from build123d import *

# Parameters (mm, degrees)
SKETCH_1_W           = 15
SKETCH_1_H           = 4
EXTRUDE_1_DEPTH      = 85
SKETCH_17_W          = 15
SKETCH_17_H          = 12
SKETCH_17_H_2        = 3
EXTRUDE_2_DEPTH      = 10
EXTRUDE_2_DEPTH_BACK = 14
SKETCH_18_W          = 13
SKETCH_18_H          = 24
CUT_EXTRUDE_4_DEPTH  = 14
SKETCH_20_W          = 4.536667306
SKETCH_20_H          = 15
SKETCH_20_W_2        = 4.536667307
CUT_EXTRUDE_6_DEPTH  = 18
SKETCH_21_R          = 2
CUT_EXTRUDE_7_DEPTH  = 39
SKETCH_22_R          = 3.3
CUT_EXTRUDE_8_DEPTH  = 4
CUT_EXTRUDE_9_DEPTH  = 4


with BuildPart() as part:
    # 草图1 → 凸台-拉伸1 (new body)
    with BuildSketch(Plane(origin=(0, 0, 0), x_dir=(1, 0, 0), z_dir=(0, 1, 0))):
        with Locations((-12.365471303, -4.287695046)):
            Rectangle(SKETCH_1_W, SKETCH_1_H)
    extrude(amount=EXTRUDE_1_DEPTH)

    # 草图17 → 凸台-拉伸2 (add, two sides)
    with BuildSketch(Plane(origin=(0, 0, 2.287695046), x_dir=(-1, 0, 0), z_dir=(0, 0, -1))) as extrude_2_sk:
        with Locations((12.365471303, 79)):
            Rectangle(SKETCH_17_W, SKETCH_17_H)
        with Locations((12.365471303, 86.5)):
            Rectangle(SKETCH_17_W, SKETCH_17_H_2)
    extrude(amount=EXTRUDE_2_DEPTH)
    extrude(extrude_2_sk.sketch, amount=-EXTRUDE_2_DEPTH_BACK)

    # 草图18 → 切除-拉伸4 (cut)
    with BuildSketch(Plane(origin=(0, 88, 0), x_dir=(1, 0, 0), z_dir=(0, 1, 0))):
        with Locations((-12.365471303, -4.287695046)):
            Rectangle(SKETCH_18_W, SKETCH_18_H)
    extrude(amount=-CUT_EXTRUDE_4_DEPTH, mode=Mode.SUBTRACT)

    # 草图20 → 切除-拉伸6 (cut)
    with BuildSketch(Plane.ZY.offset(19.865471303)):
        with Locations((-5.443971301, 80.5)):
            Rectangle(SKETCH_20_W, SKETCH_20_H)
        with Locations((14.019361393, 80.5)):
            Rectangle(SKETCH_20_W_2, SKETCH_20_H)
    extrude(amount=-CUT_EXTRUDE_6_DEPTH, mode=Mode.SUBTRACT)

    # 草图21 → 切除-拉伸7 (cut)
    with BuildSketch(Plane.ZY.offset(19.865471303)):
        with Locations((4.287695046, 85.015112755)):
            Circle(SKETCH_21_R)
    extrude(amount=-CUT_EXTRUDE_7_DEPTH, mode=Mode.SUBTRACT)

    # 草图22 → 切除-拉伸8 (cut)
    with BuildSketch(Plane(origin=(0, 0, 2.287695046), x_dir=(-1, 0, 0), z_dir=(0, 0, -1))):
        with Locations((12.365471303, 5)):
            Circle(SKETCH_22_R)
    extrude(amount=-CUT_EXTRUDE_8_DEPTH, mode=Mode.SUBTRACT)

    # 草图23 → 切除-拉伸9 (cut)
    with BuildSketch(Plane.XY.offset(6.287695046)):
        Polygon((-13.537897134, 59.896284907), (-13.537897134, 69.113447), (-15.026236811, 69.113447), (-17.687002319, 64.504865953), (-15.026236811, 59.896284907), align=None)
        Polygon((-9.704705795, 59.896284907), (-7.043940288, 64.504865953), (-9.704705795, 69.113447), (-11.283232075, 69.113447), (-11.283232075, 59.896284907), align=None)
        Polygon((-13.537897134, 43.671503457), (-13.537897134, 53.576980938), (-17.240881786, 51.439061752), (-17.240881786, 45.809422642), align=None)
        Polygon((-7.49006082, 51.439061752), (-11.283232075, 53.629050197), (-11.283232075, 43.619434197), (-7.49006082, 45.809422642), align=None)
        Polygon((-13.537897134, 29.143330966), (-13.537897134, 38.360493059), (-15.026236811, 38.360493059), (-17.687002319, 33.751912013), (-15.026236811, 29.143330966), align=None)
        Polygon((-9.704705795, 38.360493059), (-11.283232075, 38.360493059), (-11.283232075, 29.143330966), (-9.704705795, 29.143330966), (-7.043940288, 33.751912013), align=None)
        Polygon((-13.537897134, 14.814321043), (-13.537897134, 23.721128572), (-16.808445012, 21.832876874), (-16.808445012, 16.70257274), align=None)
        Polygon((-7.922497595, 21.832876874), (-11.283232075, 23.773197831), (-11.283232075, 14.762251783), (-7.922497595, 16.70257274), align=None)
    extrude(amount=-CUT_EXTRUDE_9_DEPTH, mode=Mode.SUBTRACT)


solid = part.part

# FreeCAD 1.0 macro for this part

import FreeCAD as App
import Part
import Sketcher
Q = App.Units.Quantity


def add_polygon(sketch, points):
    """Adds a closed chain of lines whose ends are joined by coincident constraints."""
    first, n = sketch.GeometryCount, len(points)
    for a, b in zip(points, points[1:] + points[:1]):
        sketch.addGeometry(Part.LineSegment(App.Vector(*a, 0), App.Vector(*b, 0)), False)
    for i in range(n):
        sketch.addConstraint(Sketcher.Constraint("Coincident", first + i, 2, first + (i + 1) % n, 1))

doc = App.newDocument("Part")
body = doc.addObject("PartDesign::Body", "Body")

sketch1 = doc.addObject("Sketcher::SketchObject", "Sketch")
body.addObject(sketch1)
sketch1.AttachmentSupport = (doc.XZ_Plane, [""])
sketch1.MapMode = "FlatFace"
add_polygon(sketch1, [(-19.9, 2.3), (-19.9, 6.3), (-4.9, 6.3), (-4.9, 2.3)])
sketch1.addConstraint(Sketcher.Constraint("Vertical", 0))
sketch1.addConstraint(Sketcher.Constraint("Horizontal", 1))
sketch1.addConstraint(Sketcher.Constraint("Vertical", 2))
sketch1.addConstraint(Sketcher.Constraint("Horizontal", 3))
sketch1.addConstraint(Sketcher.Constraint("DistanceX", 1, 1, 1, 2, 15.0))
sketch1.addConstraint(Sketcher.Constraint("DistanceY", 0, 1, 0, 2, 4.0))
sketch1.addConstraint(Sketcher.Constraint("DistanceX", 0, 2, -1, 1, 19.865471))
sketch1.addConstraint(Sketcher.Constraint("DistanceY", -1, 1, 0, 2, 6.287695))
pad1 = doc.addObject("PartDesign::Pad", "Pad")
body.addObject(pad1)
pad1.Profile = sketch1
pad1.Length = 85
pad1.Reversed = True

sketch2 = doc.addObject("Sketcher::SketchObject", "Sketch001")
body.addObject(sketch2)
sketch2.AttachmentSupport = (doc.XY_Plane, [""])
sketch2.MapMode = "FlatFace"
sketch2.AttachmentOffset = App.Placement(App.Vector(0, 0, 2.287695), App.Rotation())
add_polygon(sketch2, [(-5, 73), (-20, 73), (-20, 88), (-5, 88)])
sketch2.addConstraint(Sketcher.Constraint("Horizontal", 0))
sketch2.addConstraint(Sketcher.Constraint("Vertical", 1))
sketch2.addConstraint(Sketcher.Constraint("Horizontal", 2))
sketch2.addConstraint(Sketcher.Constraint("Vertical", 3))
sketch2.addConstraint(Sketcher.Constraint("Equal", 2, 1))
sketch2.addConstraint(Sketcher.Constraint("DistanceX", 0, 2, 0, 1, 15.0))
sketch2.addConstraint(Sketcher.Constraint("DistanceY", -1, 1, 0, 2, 73.0))
sketch2.addConstraint(Sketcher.Constraint("DistanceX", 0, 2, -1, 1, 19.865471))
pad2 = doc.addObject("PartDesign::Pad", "Pad001")
body.addObject(pad2)
pad2.Profile = sketch2
pad2.Type = "TwoLengths"
pad2.Length = 10
pad2.Length2 = 14
pad2.Reversed = True

sketch3 = doc.addObject("Sketcher::SketchObject", "Sketch002")
body.addObject(sketch3)
sketch3.AttachmentSupport = (doc.XZ_Plane, [""])
sketch3.MapMode = "FlatFace"
sketch3.AttachmentOffset = App.Placement(App.Vector(0, 0, -88), App.Rotation())
add_polygon(sketch3, [(-19, -8), (-19, 16), (-6, 16), (-6, -8)])
sketch3.addConstraint(Sketcher.Constraint("Vertical", 0))
sketch3.addConstraint(Sketcher.Constraint("Horizontal", 1))
sketch3.addConstraint(Sketcher.Constraint("Vertical", 2))
sketch3.addConstraint(Sketcher.Constraint("Horizontal", 3))
sketch3.addConstraint(Sketcher.Constraint("DistanceX", 1, 1, 1, 2, 13.0))
sketch3.addConstraint(Sketcher.Constraint("DistanceY", 0, 1, 0, 2, 24.0))
sketch3.addConstraint(Sketcher.Constraint("DistanceX", 0, 2, -1, 1, 18.865471))
sketch3.addConstraint(Sketcher.Constraint("DistanceY", -1, 1, 0, 2, 16.287695))
pocket1 = doc.addObject("PartDesign::Pocket", "Pocket")
body.addObject(pocket1)
pocket1.Profile = sketch3
pocket1.Length = 14
pocket1.Reversed = True

sketch4 = doc.addObject("Sketcher::SketchObject", "Sketch003")
body.addObject(sketch4)
sketch4.AttachmentSupport = (doc.YZ_Plane, [""])
sketch4.MapMode = "FlatFace"
sketch4.AttachmentOffset = App.Placement(App.Vector(0, 0, -19.865471), App.Rotation())
add_polygon(sketch4, [(88, -7.7), (73, -7.7), (73, -3.2), (88, -3.2)])
add_polygon(sketch4, [(88, 11.8), (73, 11.8), (73, 16.3), (88, 16.3)])
sketch4.addConstraint(Sketcher.Constraint("Horizontal", 0))
sketch4.addConstraint(Sketcher.Constraint("Vertical", 1))
sketch4.addConstraint(Sketcher.Constraint("Horizontal", 2))
sketch4.addConstraint(Sketcher.Constraint("Vertical", 3))
sketch4.addConstraint(Sketcher.Constraint("Horizontal", 4))
sketch4.addConstraint(Sketcher.Constraint("Vertical", 5))
sketch4.addConstraint(Sketcher.Constraint("Horizontal", 6))
sketch4.addConstraint(Sketcher.Constraint("Vertical", 7))
sketch4.addConstraint(Sketcher.Constraint("Vertical", 1, 2, 4, 2))
sketch4.addConstraint(Sketcher.Constraint("Vertical", 3, 2, 6, 2))
sketch4.addConstraint(Sketcher.Constraint("Equal", 3, 5))
sketch4.addConstraint(Sketcher.Constraint("DistanceX", 0, 2, 0, 1, 15.0))
sketch4.addConstraint(Sketcher.Constraint("DistanceX", -1, 1, 0, 2, 73.0))
sketch4.addConstraint(Sketcher.Constraint("DistanceY", 0, 2, 5, 2, 24.0))
sketch4.addConstraint(Sketcher.Constraint("DistanceY", 1, 1, 1, 2, 4.536667))
sketch4.addConstraint(Sketcher.Constraint("DistanceY", 0, 2, -1, 1, 7.712305))
pocket2 = doc.addObject("PartDesign::Pocket", "Pocket001")
body.addObject(pocket2)
pocket2.Profile = sketch4
pocket2.Length = 18
pocket2.Reversed = True

sketch5 = doc.addObject("Sketcher::SketchObject", "Sketch004")
body.addObject(sketch5)
sketch5.AttachmentSupport = (doc.YZ_Plane, [""])
sketch5.MapMode = "FlatFace"
sketch5.AttachmentOffset = App.Placement(App.Vector(0, 0, -19.865471), App.Rotation())
sketch5.addGeometry(Part.Circle(App.Vector(85, 4.3, 0), App.Vector(0, 0, 1), 2), False)
sketch5.addConstraint(Sketcher.Constraint("Diameter", 0, 4.0))
sketch5.addConstraint(Sketcher.Constraint("DistanceX", -1, 1, 0, 3, 85.015113))
sketch5.addConstraint(Sketcher.Constraint("DistanceY", -1, 1, 0, 3, 4.287695))
pocket3 = doc.addObject("PartDesign::Pocket", "Pocket002")
body.addObject(pocket3)
pocket3.Profile = sketch5
pocket3.Length = 39
pocket3.Reversed = True

sketch6 = doc.addObject("Sketcher::SketchObject", "Sketch005")
body.addObject(sketch6)
sketch6.AttachmentSupport = (doc.XY_Plane, [""])
sketch6.MapMode = "FlatFace"
sketch6.AttachmentOffset = App.Placement(App.Vector(0, 0, 2.287695), App.Rotation())
sketch6.addGeometry(Part.Circle(App.Vector(-12.4, 5, 0), App.Vector(0, 0, 1), 3.3), False)
sketch6.addConstraint(Sketcher.Constraint("Diameter", 0, 6.6))
sketch6.addConstraint(Sketcher.Constraint("DistanceY", -1, 1, 0, 3, 5.0))
sketch6.addConstraint(Sketcher.Constraint("DistanceX", 0, 3, -1, 1, 12.365471))
pocket4 = doc.addObject("PartDesign::Pocket", "Pocket003")
body.addObject(pocket4)
pocket4.Profile = sketch6
pocket4.Length = 4
pocket4.Reversed = True

sketch7 = doc.addObject("Sketcher::SketchObject", "Sketch006")
body.addObject(sketch7)
sketch7.AttachmentSupport = (doc.XY_Plane, [""])
sketch7.MapMode = "FlatFace"
sketch7.AttachmentOffset = App.Placement(App.Vector(0, 0, 6.287695), App.Rotation())
add_polygon(sketch7, [(-13.5, 59.9), (-13.5, 69.1), (-15, 69.1), (-17.7, 64.5), (-15, 59.9)])
add_polygon(sketch7, [(-9.7, 59.9), (-7, 64.5), (-9.7, 69.1), (-11.3, 69.1), (-11.3, 59.9)])
add_polygon(sketch7, [(-13.5, 43.7), (-13.5, 53.6), (-17.2, 51.4), (-17.2, 45.8)])
add_polygon(sketch7, [(-7.5, 51.4), (-11.3, 53.6), (-11.3, 43.6), (-7.5, 45.8)])
add_polygon(sketch7, [(-13.5, 29.1), (-13.5, 38.4), (-15, 38.4), (-17.7, 33.8), (-15, 29.1)])
add_polygon(sketch7, [(-9.7, 38.4), (-11.3, 38.4), (-11.3, 29.1), (-9.7, 29.1), (-7, 33.8)])
add_polygon(sketch7, [(-13.5, 14.8), (-13.5, 23.7), (-16.8, 21.8), (-16.8, 16.7)])
add_polygon(sketch7, [(-7.9, 21.8), (-11.3, 23.8), (-11.3, 14.8), (-7.9, 16.7)])
sketch7.addConstraint(Sketcher.Constraint("Vertical", 0))
sketch7.addConstraint(Sketcher.Constraint("Horizontal", 1))
sketch7.addConstraint(Sketcher.Constraint("Horizontal", 4))
sketch7.addConstraint(Sketcher.Constraint("Horizontal", 7))
sketch7.addConstraint(Sketcher.Constraint("Vertical", 8))
sketch7.addConstraint(Sketcher.Constraint("Horizontal", 9))
sketch7.addConstraint(Sketcher.Constraint("Vertical", 10))
sketch7.addConstraint(Sketcher.Constraint("Vertical", 12))
sketch7.addConstraint(Sketcher.Constraint("Vertical", 15))
sketch7.addConstraint(Sketcher.Constraint("Vertical", 17))
sketch7.addConstraint(Sketcher.Constraint("Vertical", 18))
sketch7.addConstraint(Sketcher.Constraint("Horizontal", 19))
sketch7.addConstraint(Sketcher.Constraint("Horizontal", 22))
sketch7.addConstraint(Sketcher.Constraint("Horizontal", 23))
sketch7.addConstraint(Sketcher.Constraint("Vertical", 24))
sketch7.addConstraint(Sketcher.Constraint("Horizontal", 25))
sketch7.addConstraint(Sketcher.Constraint("Vertical", 28))
sketch7.addConstraint(Sketcher.Constraint("Vertical", 30))
sketch7.addConstraint(Sketcher.Constraint("Vertical", 33))
sketch7.addConstraint(Sketcher.Constraint("Vertical", 35))
sketch7.addConstraint(Sketcher.Constraint("Parallel", 2, 5))
sketch7.addConstraint(Sketcher.Constraint("Parallel", 3, 6))
sketch7.addConstraint(Sketcher.Constraint("Perpendicular", 6, 11))
sketch7.addConstraint(Sketcher.Constraint("Perpendicular", 5, 13))
sketch7.addConstraint(Sketcher.Constraint("Parallel", 13, 14))
sketch7.addConstraint(Sketcher.Constraint("Parallel", 11, 16))
sketch7.addConstraint(Sketcher.Constraint("Perpendicular", 14, 20))
sketch7.addConstraint(Sketcher.Constraint("Perpendicular", 16, 21))
sketch7.addConstraint(Sketcher.Constraint("Parallel", 20, 26))
sketch7.addConstraint(Sketcher.Constraint("Parallel", 21, 27))
sketch7.addConstraint(Sketcher.Constraint("Perpendicular", 27, 29))
sketch7.addConstraint(Sketcher.Constraint("Perpendicular", 26, 31))
sketch7.addConstraint(Sketcher.Constraint("Parallel", 31, 32))
sketch7.addConstraint(Sketcher.Constraint("Parallel", 29, 34))
sketch7.addConstraint(Sketcher.Constraint("Horizontal", 2, 2, 5, 2))
sketch7.addConstraint(Sketcher.Constraint("Horizontal", 1, 2, 6, 2))
sketch7.addConstraint(Sketcher.Constraint("Horizontal", 4, 2, 8, 2))
sketch7.addConstraint(Sketcher.Constraint("Horizontal", 12, 2, 16, 2))
sketch7.addConstraint(Sketcher.Constraint("Horizontal", 11, 2, 17, 2))
sketch7.addConstraint(Sketcher.Constraint("Horizontal", 19, 2, 23, 2))
sketch7.addConstraint(Sketcher.Constraint("Horizontal", 22, 2, 24, 2))
sketch7.addConstraint(Sketcher.Constraint("Horizontal", 20, 2, 26, 2))
sketch7.addConstraint(Sketcher.Constraint("Horizontal", 30, 2, 34, 2))
sketch7.addConstraint(Sketcher.Constraint("Horizontal", 29, 2, 35, 2))
sketch7.addConstraint(Sketcher.Constraint("Vertical", 1, 2, 3, 2))
sketch7.addConstraint(Sketcher.Constraint("Vertical", 6, 2, 9, 2))
sketch7.addConstraint(Sketcher.Constraint("Vertical", 4, 2, 10, 2))
sketch7.addConstraint(Sketcher.Constraint("Vertical", 8, 2, 14, 2))
sketch7.addConstraint(Sketcher.Constraint("Vertical", 13, 2, 18, 2))
sketch7.addConstraint(Sketcher.Constraint("Vertical", 3, 2, 19, 2))
sketch7.addConstraint(Sketcher.Constraint("Vertical", 2, 2, 20, 2))
sketch7.addConstraint(Sketcher.Constraint("Vertical", 19, 2, 21, 2))
sketch7.addConstraint(Sketcher.Constraint("Vertical", 15, 2, 23, 2))
sketch7.addConstraint(Sketcher.Constraint("Vertical", 9, 2, 25, 2))
sketch7.addConstraint(Sketcher.Constraint("Vertical", 22, 2, 28, 2))
sketch7.addConstraint(Sketcher.Constraint("Vertical", 24, 2, 32, 2))
sketch7.addConstraint(Sketcher.Constraint("Angle", 2, Q("-120 deg")))
sketch7.addConstraint(Sketcher.Constraint("DistanceX", 1, 2, 1, 1, 1.48834))
sketch7.addConstraint(Sketcher.Constraint("DistanceY", 12, 2, 12, 1, 5.629639))
sketch7.addConstraint(Sketcher.Constraint("DistanceX", 31, 2, 34, 2, 5.6154))
sketch7.addConstraint(Sketcher.Constraint("Distance", 2, 5.321531))
sketch7.addConstraint(Sketcher.Constraint("Distance", 11, 4.275838))
sketch7.addConstraint(Sketcher.Constraint("Distance", 32, 3.880642))
sketch7.addConstraint(Sketcher.Constraint("DistanceX", 7, 2, 7, 1, 1.578526))
sketch7.addConstraint(Sketcher.Constraint("DistanceY", 15, 2, 15, 1, 10.009616))
sketch7.addConstraint(Sketcher.Constraint("DistanceY", 28, 1, 28, 2, 8.906808))
sketch7.addConstraint(Sketcher.Constraint("DistanceY", 30, 2, 30, 1, 5.130304))
sketch7.addConstraint(Sketcher.Constraint("DistanceX", 5, 2, -1, 1, 7.04394))
sketch7.addConstraint(Sketcher.Constraint("DistanceY", -1, 1, 10, 2, 53.576981))
sketch7.addConstraint(Sketcher.Constraint("DistanceY", -1, 1, 21, 2, 29.143331))
sketch7.addConstraint(Sketcher.Constraint("DistanceY", -1, 1, 28, 2, 23.721129))
sketch7.addConstraint(Sketcher.Constraint("DistanceY", 13, 2, 4, 2, 16.224781))
pocket5 = doc.addObject("PartDesign::Pocket", "Pocket004")
body.addObject(pocket5)
pocket5.Profile = sketch7
pocket5.Length = 4

doc.recompute()
